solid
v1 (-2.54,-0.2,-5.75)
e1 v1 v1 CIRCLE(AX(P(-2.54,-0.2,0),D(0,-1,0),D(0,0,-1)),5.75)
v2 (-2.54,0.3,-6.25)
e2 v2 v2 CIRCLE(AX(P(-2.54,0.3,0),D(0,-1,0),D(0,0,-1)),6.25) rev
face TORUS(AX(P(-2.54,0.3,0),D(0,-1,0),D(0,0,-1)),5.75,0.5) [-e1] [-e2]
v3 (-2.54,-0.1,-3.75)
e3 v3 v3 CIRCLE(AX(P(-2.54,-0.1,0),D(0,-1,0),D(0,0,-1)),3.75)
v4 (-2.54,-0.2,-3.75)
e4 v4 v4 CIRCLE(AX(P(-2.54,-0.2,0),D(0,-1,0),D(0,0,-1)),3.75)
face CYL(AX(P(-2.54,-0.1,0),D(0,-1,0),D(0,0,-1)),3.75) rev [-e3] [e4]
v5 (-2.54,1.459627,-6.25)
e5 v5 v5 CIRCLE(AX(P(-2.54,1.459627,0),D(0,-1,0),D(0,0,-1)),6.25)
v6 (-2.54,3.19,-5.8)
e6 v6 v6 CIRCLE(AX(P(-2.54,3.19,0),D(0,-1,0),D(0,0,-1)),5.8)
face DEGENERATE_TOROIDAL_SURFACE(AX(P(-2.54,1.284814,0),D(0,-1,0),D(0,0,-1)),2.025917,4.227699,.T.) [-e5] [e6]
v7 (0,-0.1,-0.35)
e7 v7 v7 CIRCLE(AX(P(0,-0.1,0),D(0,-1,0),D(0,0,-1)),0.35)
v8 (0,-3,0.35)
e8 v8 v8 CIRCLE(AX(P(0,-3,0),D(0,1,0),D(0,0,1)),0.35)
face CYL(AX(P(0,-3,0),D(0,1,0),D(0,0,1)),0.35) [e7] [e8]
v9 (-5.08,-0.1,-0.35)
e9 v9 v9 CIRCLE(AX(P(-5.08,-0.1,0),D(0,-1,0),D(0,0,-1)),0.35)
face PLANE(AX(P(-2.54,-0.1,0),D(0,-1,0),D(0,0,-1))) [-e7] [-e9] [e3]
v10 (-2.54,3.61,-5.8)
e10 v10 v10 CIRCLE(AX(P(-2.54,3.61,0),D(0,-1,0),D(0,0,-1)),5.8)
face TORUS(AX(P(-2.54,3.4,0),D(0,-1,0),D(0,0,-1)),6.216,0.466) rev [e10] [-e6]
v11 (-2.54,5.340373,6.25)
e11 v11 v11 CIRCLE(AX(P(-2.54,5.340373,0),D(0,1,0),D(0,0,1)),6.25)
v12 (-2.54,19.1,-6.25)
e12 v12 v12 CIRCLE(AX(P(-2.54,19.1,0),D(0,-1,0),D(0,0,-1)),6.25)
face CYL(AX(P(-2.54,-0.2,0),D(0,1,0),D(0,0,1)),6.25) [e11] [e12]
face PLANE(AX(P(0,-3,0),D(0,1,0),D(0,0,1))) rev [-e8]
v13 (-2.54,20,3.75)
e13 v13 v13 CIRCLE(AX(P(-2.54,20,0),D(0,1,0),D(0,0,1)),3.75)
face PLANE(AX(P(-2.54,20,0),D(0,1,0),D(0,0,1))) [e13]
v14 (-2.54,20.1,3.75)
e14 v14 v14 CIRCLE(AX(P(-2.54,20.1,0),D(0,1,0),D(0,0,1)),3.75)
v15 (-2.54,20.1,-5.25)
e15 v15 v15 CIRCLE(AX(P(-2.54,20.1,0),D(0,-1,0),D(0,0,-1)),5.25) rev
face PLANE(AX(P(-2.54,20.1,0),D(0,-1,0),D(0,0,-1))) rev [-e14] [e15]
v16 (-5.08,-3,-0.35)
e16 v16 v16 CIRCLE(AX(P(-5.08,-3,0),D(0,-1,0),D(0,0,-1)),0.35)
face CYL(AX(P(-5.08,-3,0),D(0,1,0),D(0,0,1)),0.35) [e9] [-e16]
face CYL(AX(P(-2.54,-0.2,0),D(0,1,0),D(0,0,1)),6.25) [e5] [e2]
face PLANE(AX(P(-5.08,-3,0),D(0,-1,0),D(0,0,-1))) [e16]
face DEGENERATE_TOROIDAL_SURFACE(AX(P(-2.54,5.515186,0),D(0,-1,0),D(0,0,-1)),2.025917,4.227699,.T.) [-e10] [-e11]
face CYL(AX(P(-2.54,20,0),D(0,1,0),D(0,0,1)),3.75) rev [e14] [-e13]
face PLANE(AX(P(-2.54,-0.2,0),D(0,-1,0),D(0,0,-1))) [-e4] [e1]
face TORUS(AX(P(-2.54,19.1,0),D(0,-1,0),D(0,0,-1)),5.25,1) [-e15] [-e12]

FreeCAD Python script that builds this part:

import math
import FreeCAD as App
import Part
import Sketcher

V = App.Vector
Q = App.Units.Quantity


def edges_at(feature, points):
    """Names of the edges that pass closest to the given points."""
    edges = feature.Shape.Edges
    near = lambda p: min(range(len(edges)), key=lambda i: edges[i].distToShape(Part.Vertex(*p))[0])
    return sorted({f"Edge{near(p) + 1}" for p in points})

doc = App.newDocument("Part")
body = doc.addObject("PartDesign::Body", "Body")

# Sketch on XZ plane
sketch1 = body.newObject("Sketcher::SketchObject", "Sketch")
sketch1.AttachmentSupport = (doc.getObject("XZ_Plane"), [""])
sketch1.MapMode = "FlatFace"
sketch1.addGeometry(Part.Circle(V(0, 0, 0), V(0, 0, 1), 0.35), False)
sketch1.addConstraint(Sketcher.Constraint("Coincident", 0, 3, -1, 1))
sketch1.addConstraint(Sketcher.Constraint("Diameter", 0, Q("0.7 mm")))
pad1 = body.newObject("PartDesign::Pad", "Pad")
pad1.Profile = sketch1
pad1.Length = 3

# Sketch on XZ plane
sketch2 = body.newObject("Sketcher::SketchObject", "Sketch001")
sketch2.AttachmentSupport = (doc.getObject("XZ_Plane"), [""])
sketch2.MapMode = "FlatFace"
sketch2.addGeometry(Part.Circle(V(-2.5, 0, 0), V(0, 0, 1), 3.8), False)
sketch2.addConstraint(Sketcher.Constraint("PointOnObject", 0, 3, -1))
sketch2.addConstraint(Sketcher.Constraint("Diameter", 0, Q("7.5 mm")))
sketch2.addConstraint(Sketcher.Constraint("DistanceX", 0, 3, -1, 1, Q("2.54 mm")))
pad2 = body.newObject("PartDesign::Pad", "Pad001")
pad2.Profile = sketch2
pad2.Length = 0.5
pad2.Reversed = True

# Sketch on XZ plane
sketch3 = body.newObject("Sketcher::SketchObject", "Sketch002")
sketch3.AttachmentSupport = (doc.getObject("XZ_Plane"), [""])
sketch3.MapMode = "FlatFace"
sketch3.addGeometry(Part.Circle(V(-5.08, 0, 0), V(0, 0, 1), 0.35), False)
sketch3.addConstraint(Sketcher.Constraint("PointOnObject", 0, 3, -1))
sketch3.addConstraint(Sketcher.Constraint("Diameter", 0, Q("0.7 mm")))
sketch3.addConstraint(Sketcher.Constraint("DistanceX", 0, 3, -1, 1, Q("5.08 mm")))
pad3 = body.newObject("PartDesign::Pad", "Pad002")
pad3.Profile = sketch3
pad3.Length = 3

# Sketch on XZ plane
sketch4 = body.newObject("Sketcher::SketchObject", "Sketch003")
sketch4.AttachmentSupport = (doc.getObject("XZ_Plane"), [""])
sketch4.MapMode = "FlatFace"
sketch4.AttachmentOffset = App.Placement(V(0, 0, 0.1), App.Rotation())
sketch4.addGeometry(Part.Circle(V(-3, 0, 0), V(0, 0, 1), 6), False)
sketch4.addConstraint(Sketcher.Constraint("PointOnObject", 0, 3, -1))
sketch4.addConstraint(Sketcher.Constraint("Diameter", 0, Q("12.5 mm")))
sketch4.addConstraint(Sketcher.Constraint("DistanceX", 0, 3, -1, 1, Q("2.54 mm")))
pad4 = body.newObject("PartDesign::Pad", "Pad003")
pad4.Profile = sketch4
pad4.Type = "TwoLengths"
pad4.Length = 0.1
pad4.Length2 = 20.2

# Sketch on XZ plane
sketch5 = body.newObject("Sketcher::SketchObject", "Sketch004")
sketch5.AttachmentSupport = (doc.getObject("XZ_Plane"), [""])
sketch5.MapMode = "FlatFace"
sketch5.AttachmentOffset = App.Placement(V(0, 0, 0.2), App.Rotation())
sketch5.addGeometry(Part.Circle(V(-2.54, 0, 0), V(0, 0, 1), 3.75), False)
sketch5.addGeometry(Part.Circle(V(-5.08, 0, 0), V(0, 0, 1), 0.35), False)
sketch5.addGeometry(Part.Circle(V(0, 0, 0), V(0, 0, 1), 0.35), False)
sketch5.addConstraint(Sketcher.Constraint("Coincident", 2, 3, -1, 1))
sketch5.addConstraint(Sketcher.Constraint("Equal", 1, 2))
sketch5.addConstraint(Sketcher.Constraint("PointOnObject", 0, 3, -1))
sketch5.addConstraint(Sketcher.Constraint("PointOnObject", 1, 3, -1))
sketch5.addConstraint(Sketcher.Constraint("Diameter", 0, Q("7.5 mm")))
sketch5.addConstraint(Sketcher.Constraint("Diameter", 1, Q("0.7 mm")))
sketch5.addConstraint(Sketcher.Constraint("DistanceX", 0, 3, -1, 1, Q("2.54 mm")))
sketch5.addConstraint(Sketcher.Constraint("DistanceX", 1, 3, -1, 1, Q("5.08 mm")))
pocket1 = body.newObject("PartDesign::Pocket", "Pocket")
pocket1.Profile = sketch5
pocket1.Length = 0.1
doc.recompute()

fillet = body.newObject("PartDesign::Fillet", "Fillet")
fillet.Base = (pocket1, edges_at(pocket1, [(-8.79, -0.2, 0)]))
fillet.Radius = 0.5
doc.recompute()

fillet2 = body.newObject("PartDesign::Fillet", "Fillet001")
fillet2.Base = (fillet, edges_at(fillet, [(-8.79, 20.1, 0)]))
fillet2.Radius = 1

# Sketch on XZ plane
sketch6 = body.newObject("Sketcher::SketchObject", "Sketch005")
sketch6.AttachmentSupport = (doc.getObject("XZ_Plane"), [""])
sketch6.MapMode = "FlatFace"
sketch6.AttachmentOffset = App.Placement(V(0, 0, -20.1), App.Rotation())
sketch6.addGeometry(Part.Circle(V(-2.5, 0, 0), V(0, 0, 1), 3.8), False)
sketch6.addConstraint(Sketcher.Constraint("PointOnObject", 0, 3, -1))
sketch6.addConstraint(Sketcher.Constraint("Diameter", 0, Q("7.5 mm")))
sketch6.addConstraint(Sketcher.Constraint("DistanceX", 0, 3, -1, 1, Q("2.54 mm")))
pocket2 = body.newObject("PartDesign::Pocket", "Pocket001")
pocket2.Profile = sketch6
pocket2.Length = 0.1
pocket2.Reversed = True

# Sketch on XY plane
sketch7 = body.newObject("Sketcher::SketchObject", "Sketch006")
sketch7.AttachmentSupport = (doc.getObject("XY_Plane"), [""])
sketch7.MapMode = "FlatFace"
sketch7.addGeometry(Part.LineSegment(V(4.21, 5.69, 0), V(3.71, 5.69, 0)), False)
sketch7.addGeometry(Part.ArcOfCircle(Part.Circle(V(-0.51, 5.52, 0), V(0, 0, 1), 4.23), math.radians(-27), math.radians(2)), False)
sketch7.addGeometry(Part.ArcOfCircle(Part.Circle(V(3.68, 3.4, 0), V(0, 0, 1), 0.47), math.radians(153), math.radians(207)), False)
sketch7.addGeometry(Part.ArcOfCircle(Part.Circle(V(-0.51, 1.28, 0), V(0, 0, 1), 4.23), math.radians(-2), math.radians(27)), False)
sketch7.addGeometry(Part.LineSegment(V(3.71, 1.11, 0), V(4.21, 1.11, 0)), False)
sketch7.addGeometry(Part.LineSegment(V(4.21, 1.11, 0), V(4.21, 5.69, 0)), False)
sketch7.addGeometry(Part.LineSegment(V(-2.54, 1.11, 0), V(-2.54, 5.69, 0)), True)  # axis
sketch7.addConstraint(Sketcher.Constraint("Coincident", 0, 2, 1, 2))
sketch7.addConstraint(Sketcher.Constraint("Tangent", 1, 1, 2, 1))
sketch7.addConstraint(Sketcher.Constraint("Tangent", 2, 2, 3, 2))
sketch7.addConstraint(Sketcher.Constraint("Coincident", 3, 1, 4, 1))
sketch7.addConstraint(Sketcher.Constraint("Coincident", 4, 2, 5, 1))
sketch7.addConstraint(Sketcher.Constraint("Coincident", 5, 2, 0, 1))
sketch7.addConstraint(Sketcher.Constraint("Horizontal", 0))
sketch7.addConstraint(Sketcher.Constraint("Horizontal", 4))
sketch7.addConstraint(Sketcher.Constraint("Vertical", 5))
sketch7.addConstraint(Sketcher.Constraint("Vertical", 6))
sketch7.addConstraint(Sketcher.Constraint("Equal", 1, 3))
sketch7.addConstraint(Sketcher.Constraint("Horizontal", 4, 2, 6, 1))
sketch7.addConstraint(Sketcher.Constraint("Horizontal", 5, 2, 6, 2))
sketch7.addConstraint(Sketcher.Constraint("Vertical", 1, 3, 3, 3))
sketch7.addConstraint(Sketcher.Constraint("Vertical", 0, 2, 3, 1))
sketch7.addConstraint(Sketcher.Constraint("DistanceX", 0, 2, 0, 1, Q("0.5 mm")))
sketch7.addConstraint(Sketcher.Constraint("Radius", 2, Q("0.466 mm")))
sketch7.addConstraint(Sketcher.Constraint("DistanceY", 5, 1, 5, 2, Q("4.58 mm")))
sketch7.addConstraint(Sketcher.Constraint("DistanceY", -1, 1, 2, 3, Q("3.4 mm")))
sketch7.addConstraint(Sketcher.Constraint("Radius", 1, Q("4.227699 mm")))
sketch7.addConstraint(Sketcher.Constraint("DistanceY", 2, 2, 0, 2, Q("2.5 mm")))
sketch7.addConstraint(Sketcher.Constraint("DistanceX", 6, 1, 2, 2, Q("5.8 mm")))
sketch7.addConstraint(Sketcher.Constraint("DistanceX", -1, 1, 0, 2, Q("3.71 mm")))
groove = body.newObject("PartDesign::Groove", "Groove")
groove.Profile = sketch7
groove.ReferenceAxis = (sketch7, ["Axis0"])
groove.Angle = 360

doc.recompute()
